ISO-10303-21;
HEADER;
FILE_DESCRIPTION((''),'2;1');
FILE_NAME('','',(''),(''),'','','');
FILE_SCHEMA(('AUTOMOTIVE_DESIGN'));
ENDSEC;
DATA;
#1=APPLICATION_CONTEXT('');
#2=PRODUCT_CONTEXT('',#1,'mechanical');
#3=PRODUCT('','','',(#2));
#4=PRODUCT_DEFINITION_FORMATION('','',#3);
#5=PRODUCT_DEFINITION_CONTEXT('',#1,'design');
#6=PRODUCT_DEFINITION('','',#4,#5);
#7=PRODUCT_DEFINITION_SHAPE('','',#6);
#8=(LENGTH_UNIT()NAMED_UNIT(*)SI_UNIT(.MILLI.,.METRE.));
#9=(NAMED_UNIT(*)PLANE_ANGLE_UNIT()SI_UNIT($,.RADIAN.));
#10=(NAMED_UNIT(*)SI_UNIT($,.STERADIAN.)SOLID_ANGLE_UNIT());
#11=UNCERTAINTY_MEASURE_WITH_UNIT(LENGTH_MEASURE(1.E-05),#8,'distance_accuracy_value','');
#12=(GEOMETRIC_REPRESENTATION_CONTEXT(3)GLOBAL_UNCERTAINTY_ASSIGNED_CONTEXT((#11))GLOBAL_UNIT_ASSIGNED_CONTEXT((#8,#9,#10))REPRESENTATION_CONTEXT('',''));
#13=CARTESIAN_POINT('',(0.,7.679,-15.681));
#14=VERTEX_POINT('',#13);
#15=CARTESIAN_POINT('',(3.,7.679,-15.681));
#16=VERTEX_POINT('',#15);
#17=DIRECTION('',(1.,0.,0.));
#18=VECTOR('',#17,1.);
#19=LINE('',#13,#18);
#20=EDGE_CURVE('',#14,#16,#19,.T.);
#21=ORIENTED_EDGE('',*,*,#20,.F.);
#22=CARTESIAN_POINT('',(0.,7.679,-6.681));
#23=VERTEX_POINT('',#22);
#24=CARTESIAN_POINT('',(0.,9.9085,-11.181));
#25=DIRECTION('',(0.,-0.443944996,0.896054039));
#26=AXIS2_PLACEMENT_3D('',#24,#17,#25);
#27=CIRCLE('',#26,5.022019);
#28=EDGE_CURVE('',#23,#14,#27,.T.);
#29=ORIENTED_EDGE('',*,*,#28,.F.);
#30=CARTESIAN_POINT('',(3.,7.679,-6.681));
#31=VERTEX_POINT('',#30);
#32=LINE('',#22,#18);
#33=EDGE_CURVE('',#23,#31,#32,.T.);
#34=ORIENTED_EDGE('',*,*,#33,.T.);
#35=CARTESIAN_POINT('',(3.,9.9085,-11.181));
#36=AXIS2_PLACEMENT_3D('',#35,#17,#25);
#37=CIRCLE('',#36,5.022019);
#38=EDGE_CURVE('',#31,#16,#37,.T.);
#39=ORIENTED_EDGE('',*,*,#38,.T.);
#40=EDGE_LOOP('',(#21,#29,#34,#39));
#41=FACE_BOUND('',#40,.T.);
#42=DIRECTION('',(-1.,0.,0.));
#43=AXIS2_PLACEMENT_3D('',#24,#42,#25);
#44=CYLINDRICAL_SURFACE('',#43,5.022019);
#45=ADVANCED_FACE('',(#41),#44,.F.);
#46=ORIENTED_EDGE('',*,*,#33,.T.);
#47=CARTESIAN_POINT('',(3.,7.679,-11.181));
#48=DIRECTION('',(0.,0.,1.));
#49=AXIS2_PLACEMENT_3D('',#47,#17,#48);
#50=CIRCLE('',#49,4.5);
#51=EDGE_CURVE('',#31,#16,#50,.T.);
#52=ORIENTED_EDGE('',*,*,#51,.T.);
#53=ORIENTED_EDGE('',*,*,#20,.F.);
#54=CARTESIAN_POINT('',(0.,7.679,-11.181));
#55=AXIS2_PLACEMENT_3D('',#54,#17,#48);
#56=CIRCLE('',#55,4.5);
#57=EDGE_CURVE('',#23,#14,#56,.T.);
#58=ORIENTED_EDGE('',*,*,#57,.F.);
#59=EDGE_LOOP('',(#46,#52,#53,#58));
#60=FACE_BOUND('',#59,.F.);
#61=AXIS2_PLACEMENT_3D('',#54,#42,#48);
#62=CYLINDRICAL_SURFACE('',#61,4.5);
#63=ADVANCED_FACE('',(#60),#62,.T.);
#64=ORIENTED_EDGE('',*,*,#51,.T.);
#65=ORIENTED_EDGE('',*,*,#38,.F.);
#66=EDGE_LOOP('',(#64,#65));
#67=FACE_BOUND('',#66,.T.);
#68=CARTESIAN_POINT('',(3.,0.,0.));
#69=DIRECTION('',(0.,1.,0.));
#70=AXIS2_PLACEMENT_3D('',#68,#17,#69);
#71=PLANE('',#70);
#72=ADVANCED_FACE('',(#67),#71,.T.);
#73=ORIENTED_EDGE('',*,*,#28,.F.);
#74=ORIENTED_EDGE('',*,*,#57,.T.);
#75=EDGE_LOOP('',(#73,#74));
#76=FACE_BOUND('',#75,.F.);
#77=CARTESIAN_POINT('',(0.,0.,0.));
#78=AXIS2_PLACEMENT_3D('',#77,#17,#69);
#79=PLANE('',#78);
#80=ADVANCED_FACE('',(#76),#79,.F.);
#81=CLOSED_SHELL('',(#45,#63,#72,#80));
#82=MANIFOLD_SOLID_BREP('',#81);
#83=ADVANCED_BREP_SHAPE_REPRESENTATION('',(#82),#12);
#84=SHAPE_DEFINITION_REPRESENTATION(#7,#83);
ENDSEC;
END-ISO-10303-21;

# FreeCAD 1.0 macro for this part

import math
import FreeCAD as App
import Part
import Sketcher

V = App.Vector

doc = App.newDocument("Part")
body = doc.addObject("PartDesign::Body", "Body")

# Sketch on YZ plane
sketch1 = body.newObject("Sketcher::SketchObject", "Sketch")
sketch1.AttachmentSupport = (doc.getObject("YZ_Plane"), [""])
sketch1.MapMode = "FlatFace"
sketch1.addGeometry([
    Part.ArcOfCircle(Part.Circle(V(9.9, -11.2, 0), V(0, 0, 1), 5), math.radians(116), math.radians(244)),
    Part.ArcOfCircle(Part.Circle(V(7.7, -11.2, 0), V(0, 0, 1), 4.5), math.radians(90), math.radians(270)),
], False)
sketch1.addConstraint([
    Sketcher.Constraint("Coincident", 0, 1, 1, 1),
    Sketcher.Constraint("Coincident", 1, 2, 0, 2),
    Sketcher.Constraint("Horizontal", 0, 3, 1, 3),
    Sketcher.Constraint("Vertical", 1, 3, 0, 1),
    Sketcher.Constraint("Radius", 1, 4.5),
    Sketcher.Constraint("Radius", 0, 5.022),
    Sketcher.Constraint("DistanceY", 0, 3, -1, 1, 11.181),
    Sketcher.Constraint("DistanceX", -1, 1, 1, 3, 7.679),
])
pad1 = body.newObject("PartDesign::Pad", "Pad")
pad1.Profile = sketch1
pad1.Length = 3

doc.recompute()
